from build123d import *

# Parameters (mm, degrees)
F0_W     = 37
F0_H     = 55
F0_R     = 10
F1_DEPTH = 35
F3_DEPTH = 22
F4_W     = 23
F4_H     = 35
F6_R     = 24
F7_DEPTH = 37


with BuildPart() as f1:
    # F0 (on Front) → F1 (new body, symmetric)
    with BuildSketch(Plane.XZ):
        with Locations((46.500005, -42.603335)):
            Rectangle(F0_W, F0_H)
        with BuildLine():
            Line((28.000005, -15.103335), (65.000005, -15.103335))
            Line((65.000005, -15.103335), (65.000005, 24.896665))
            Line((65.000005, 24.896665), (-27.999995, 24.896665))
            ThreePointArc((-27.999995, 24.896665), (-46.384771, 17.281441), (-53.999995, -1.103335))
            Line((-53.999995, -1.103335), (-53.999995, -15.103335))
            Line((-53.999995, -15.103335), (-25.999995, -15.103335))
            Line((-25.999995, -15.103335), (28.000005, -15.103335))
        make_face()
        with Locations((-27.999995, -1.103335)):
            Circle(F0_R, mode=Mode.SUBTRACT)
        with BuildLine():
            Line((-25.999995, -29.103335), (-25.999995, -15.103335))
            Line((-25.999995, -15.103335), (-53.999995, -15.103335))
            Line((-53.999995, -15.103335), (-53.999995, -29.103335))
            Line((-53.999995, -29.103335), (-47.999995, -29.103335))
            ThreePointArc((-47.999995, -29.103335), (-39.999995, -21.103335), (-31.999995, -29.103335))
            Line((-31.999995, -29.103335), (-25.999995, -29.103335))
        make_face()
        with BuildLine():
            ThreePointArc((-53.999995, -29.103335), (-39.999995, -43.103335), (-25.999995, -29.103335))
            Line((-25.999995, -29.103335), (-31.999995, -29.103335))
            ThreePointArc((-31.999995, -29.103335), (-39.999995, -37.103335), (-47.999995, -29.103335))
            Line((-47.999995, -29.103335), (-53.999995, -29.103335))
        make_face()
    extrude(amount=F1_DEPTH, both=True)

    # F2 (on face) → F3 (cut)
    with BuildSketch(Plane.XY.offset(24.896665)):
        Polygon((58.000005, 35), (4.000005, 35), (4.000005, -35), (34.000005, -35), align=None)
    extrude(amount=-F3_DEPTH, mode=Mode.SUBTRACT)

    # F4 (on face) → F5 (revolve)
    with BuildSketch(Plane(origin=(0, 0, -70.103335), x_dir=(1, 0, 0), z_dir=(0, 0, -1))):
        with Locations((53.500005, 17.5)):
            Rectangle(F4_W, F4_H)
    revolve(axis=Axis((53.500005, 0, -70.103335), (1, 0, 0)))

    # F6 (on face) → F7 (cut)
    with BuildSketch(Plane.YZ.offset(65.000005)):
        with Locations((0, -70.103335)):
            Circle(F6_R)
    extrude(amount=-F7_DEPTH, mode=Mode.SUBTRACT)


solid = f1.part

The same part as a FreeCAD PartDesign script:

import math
import FreeCAD as App
import Part
import Sketcher
Q = App.Units.Quantity

doc = App.newDocument("Part")
body = doc.addObject("PartDesign::Body", "Body")

sketch1 = body.newObject("Sketcher::SketchObject", "Sketch")
sketch1.AttachmentSupport = (doc.getObject("XZ_Plane"), [""])
sketch1.MapMode = "FlatFace"
sketch1.addGeometry(Part.LineSegment(App.Vector(28, -15, 0), App.Vector(28, -70, 0)), False)
sketch1.addGeometry(Part.LineSegment(App.Vector(28, -70, 0), App.Vector(65, -70, 0)), False)
sketch1.addGeometry(Part.LineSegment(App.Vector(65, -70, 0), App.Vector(65, 25, 0)), False)
sketch1.addGeometry(Part.LineSegment(App.Vector(65, 25, 0), App.Vector(-28, 25, 0)), False)
sketch1.addGeometry(Part.ArcOfCircle(Part.Circle(App.Vector(-28, -1, 0), App.Vector(0, 0, 1), 26), math.radians(90), math.radians(180)), False)
sketch1.addGeometry(Part.LineSegment(App.Vector(-54, -1, 0), App.Vector(-54, -29, 0)), False)
sketch1.addGeometry(Part.ArcOfCircle(Part.Circle(App.Vector(-40, -29, 0), App.Vector(0, 0, 1), 14), math.radians(180), math.radians(360)), False)
sketch1.addGeometry(Part.LineSegment(App.Vector(-26, -29, 0), App.Vector(-26, -15, 0)), False)
sketch1.addGeometry(Part.LineSegment(App.Vector(-26, -15, 0), App.Vector(28, -15, 0)), False)
sketch1.addGeometry(Part.Circle(App.Vector(-40, -29, 0), App.Vector(0, 0, 1), 8), False)
sketch1.addGeometry(Part.Circle(App.Vector(-28, -1, 0), App.Vector(0, 0, 1), 10), False)
sketch1.addConstraint(Sketcher.Constraint("Coincident", 0, 2, 1, 1))
sketch1.addConstraint(Sketcher.Constraint("Coincident", 1, 2, 2, 1))
sketch1.addConstraint(Sketcher.Constraint("Coincident", 2, 2, 3, 1))
sketch1.addConstraint(Sketcher.Constraint("Tangent", 3, 2, 4, 1))
sketch1.addConstraint(Sketcher.Constraint("Tangent", 4, 2, 5, 1))
sketch1.addConstraint(Sketcher.Constraint("Tangent", 5, 2, 6, 1))
sketch1.addConstraint(Sketcher.Constraint("Tangent", 6, 2, 7, 1))
sketch1.addConstraint(Sketcher.Constraint("Coincident", 7, 2, 8, 1))
sketch1.addConstraint(Sketcher.Constraint("Coincident", 8, 2, 0, 1))
sketch1.addConstraint(Sketcher.Constraint("Vertical", 0))
sketch1.addConstraint(Sketcher.Constraint("Horizontal", 1))
sketch1.addConstraint(Sketcher.Constraint("Vertical", 2))
sketch1.addConstraint(Sketcher.Constraint("Horizontal", 3))
sketch1.addConstraint(Sketcher.Constraint("Vertical", 5))
sketch1.addConstraint(Sketcher.Constraint("Vertical", 7))
sketch1.addConstraint(Sketcher.Constraint("Horizontal", 8))
sketch1.addConstraint(Sketcher.Constraint("Coincident", 9, 3, 6, 3))
sketch1.addConstraint(Sketcher.Constraint("Coincident", 10, 3, 4, 3))
sketch1.addConstraint(Sketcher.Constraint("Diameter", 9, Q("16 mm")))
sketch1.addConstraint(Sketcher.Constraint("Diameter", 10, Q("20 mm")))
sketch1.addConstraint(Sketcher.Constraint("Radius", 4, Q("26.000001 mm")))
sketch1.addConstraint(Sketcher.Constraint("Radius", 6, Q("14 mm")))
sketch1.addConstraint(Sketcher.Constraint("DistanceX", 1, 1, 1, 2, Q("37 mm")))
sketch1.addConstraint(Sketcher.Constraint("DistanceX", 3, 2, 3, 1, Q("93 mm")))
sketch1.addConstraint(Sketcher.Constraint("DistanceY", 0, 2, 0, 1, Q("55 mm")))
sketch1.addConstraint(Sketcher.Constraint("DistanceY", 2, 1, 2, 2, Q("95 mm")))
sketch1.addConstraint(Sketcher.Constraint("DistanceY", 5, 2, 5, 1, Q("28 mm")))
sketch1.addConstraint(Sketcher.Constraint("DistanceX", 4, 3, -1, 1, Q("27.999994 mm")))
sketch1.addConstraint(Sketcher.Constraint("DistanceY", 4, 3, -1, 1, Q("1.103336 mm")))
pad1 = body.newObject("PartDesign::Pad", "Pad")
pad1.Profile = sketch1
pad1.Length = 70
pad1.Midplane = True

sketch2 = body.newObject("Sketcher::SketchObject", "Sketch001")
sketch2.AttachmentSupport = (doc.getObject("XY_Plane"), [""])
sketch2.MapMode = "FlatFace"
sketch2.AttachmentOffset = App.Placement(App.Vector(0, 0, 24.896665), App.Rotation())
sketch2.addGeometry(Part.LineSegment(App.Vector(58, 35, 0), App.Vector(4, 35, 0)), False)
sketch2.addGeometry(Part.LineSegment(App.Vector(4, 35, 0), App.Vector(4, -35, 0)), False)
sketch2.addGeometry(Part.LineSegment(App.Vector(4, -35, 0), App.Vector(34, -35, 0)), False)
sketch2.addGeometry(Part.LineSegment(App.Vector(34, -35, 0), App.Vector(58, 35, 0)), False)
sketch2.addConstraint(Sketcher.Constraint("Coincident", 0, 2, 1, 1))
sketch2.addConstraint(Sketcher.Constraint("Coincident", 1, 2, 2, 1))
sketch2.addConstraint(Sketcher.Constraint("Coincident", 2, 2, 3, 1))
sketch2.addConstraint(Sketcher.Constraint("Coincident", 3, 2, 0, 1))
sketch2.addConstraint(Sketcher.Constraint("Horizontal", 0))
sketch2.addConstraint(Sketcher.Constraint("Vertical", 1))
sketch2.addConstraint(Sketcher.Constraint("Horizontal", 2))
sketch2.addConstraint(Sketcher.Constraint("DistanceX", 0, 2, 0, 1, Q("54 mm")))
sketch2.addConstraint(Sketcher.Constraint("DistanceX", 2, 1, 2, 2, Q("30 mm")))
sketch2.addConstraint(Sketcher.Constraint("DistanceY", 1, 2, 1, 1, Q("70 mm")))
sketch2.addConstraint(Sketcher.Constraint("DistanceY", -1, 1, 0, 2, Q("35 mm")))
sketch2.addConstraint(Sketcher.Constraint("DistanceX", -1, 1, 0, 2, Q("4.000005 mm")))
pocket1 = body.newObject("PartDesign::Pocket", "Pocket")
pocket1.Profile = sketch2
pocket1.Length = 22

sketch3 = body.newObject("Sketcher::SketchObject", "Sketch002")
sketch3.AttachmentSupport = (doc.getObject("XY_Plane"), [""])
sketch3.MapMode = "FlatFace"
sketch3.AttachmentOffset = App.Placement(App.Vector(0, 0, -70.103335), App.Rotation())
sketch3.addGeometry(Part.LineSegment(App.Vector(42, -35, 0), App.Vector(42, 0, 0)), False)
sketch3.addGeometry(Part.LineSegment(App.Vector(42, 0, 0), App.Vector(65, 0, 0)), False)
sketch3.addGeometry(Part.LineSegment(App.Vector(65, 0, 0), App.Vector(65, -35, 0)), False)
sketch3.addGeometry(Part.LineSegment(App.Vector(65, -35, 0), App.Vector(42, -35, 0)), False)
sketch3.addConstraint(Sketcher.Constraint("Coincident", 0, 2, 1, 1))
sketch3.addConstraint(Sketcher.Constraint("Coincident", 1, 2, 2, 1))
sketch3.addConstraint(Sketcher.Constraint("Coincident", 2, 2, 3, 1))
sketch3.addConstraint(Sketcher.Constraint("Coincident", 3, 2, 0, 1))
sketch3.addConstraint(Sketcher.Constraint("Vertical", 0))
sketch3.addConstraint(Sketcher.Constraint("Horizontal", 1))
sketch3.addConstraint(Sketcher.Constraint("Vertical", 2))
sketch3.addConstraint(Sketcher.Constraint("Horizontal", 3))
sketch3.addConstraint(Sketcher.Constraint("PointOnObject", 0, 2, -1))
sketch3.addConstraint(Sketcher.Constraint("DistanceX", 1, 1, 1, 2, Q("23 mm")))
sketch3.addConstraint(Sketcher.Constraint("DistanceY", 0, 1, 0, 2, Q("35 mm")))
sketch3.addConstraint(Sketcher.Constraint("DistanceX", -1, 1, 0, 2, Q("42.000005 mm")))
revolution = body.newObject("PartDesign::Revolution", "Revolution")
revolution.Profile = sketch3
revolution.ReferenceAxis = (sketch3, ["H_Axis"])
revolution.Angle = 360

sketch4 = body.newObject("Sketcher::SketchObject", "Sketch003")
sketch4.AttachmentSupport = (doc.getObject("YZ_Plane"), [""])
sketch4.MapMode = "FlatFace"
sketch4.AttachmentOffset = App.Placement(App.Vector(0, 0, 65.000005), App.Rotation())
sketch4.addGeometry(Part.Circle(App.Vector(0, -70, 0), App.Vector(0, 0, 1), 24), False)
sketch4.addConstraint(Sketcher.Constraint("PointOnObject", 0, 3, -2))
sketch4.addConstraint(Sketcher.Constraint("Diameter", 0, Q("48 mm")))
sketch4.addConstraint(Sketcher.Constraint("DistanceY", 0, 3, -1, 1, Q("70.103335 mm")))
pocket2 = body.newObject("PartDesign::Pocket", "Pocket001")
pocket2.Profile = sketch4
pocket2.Length = 37

doc.recompute()
